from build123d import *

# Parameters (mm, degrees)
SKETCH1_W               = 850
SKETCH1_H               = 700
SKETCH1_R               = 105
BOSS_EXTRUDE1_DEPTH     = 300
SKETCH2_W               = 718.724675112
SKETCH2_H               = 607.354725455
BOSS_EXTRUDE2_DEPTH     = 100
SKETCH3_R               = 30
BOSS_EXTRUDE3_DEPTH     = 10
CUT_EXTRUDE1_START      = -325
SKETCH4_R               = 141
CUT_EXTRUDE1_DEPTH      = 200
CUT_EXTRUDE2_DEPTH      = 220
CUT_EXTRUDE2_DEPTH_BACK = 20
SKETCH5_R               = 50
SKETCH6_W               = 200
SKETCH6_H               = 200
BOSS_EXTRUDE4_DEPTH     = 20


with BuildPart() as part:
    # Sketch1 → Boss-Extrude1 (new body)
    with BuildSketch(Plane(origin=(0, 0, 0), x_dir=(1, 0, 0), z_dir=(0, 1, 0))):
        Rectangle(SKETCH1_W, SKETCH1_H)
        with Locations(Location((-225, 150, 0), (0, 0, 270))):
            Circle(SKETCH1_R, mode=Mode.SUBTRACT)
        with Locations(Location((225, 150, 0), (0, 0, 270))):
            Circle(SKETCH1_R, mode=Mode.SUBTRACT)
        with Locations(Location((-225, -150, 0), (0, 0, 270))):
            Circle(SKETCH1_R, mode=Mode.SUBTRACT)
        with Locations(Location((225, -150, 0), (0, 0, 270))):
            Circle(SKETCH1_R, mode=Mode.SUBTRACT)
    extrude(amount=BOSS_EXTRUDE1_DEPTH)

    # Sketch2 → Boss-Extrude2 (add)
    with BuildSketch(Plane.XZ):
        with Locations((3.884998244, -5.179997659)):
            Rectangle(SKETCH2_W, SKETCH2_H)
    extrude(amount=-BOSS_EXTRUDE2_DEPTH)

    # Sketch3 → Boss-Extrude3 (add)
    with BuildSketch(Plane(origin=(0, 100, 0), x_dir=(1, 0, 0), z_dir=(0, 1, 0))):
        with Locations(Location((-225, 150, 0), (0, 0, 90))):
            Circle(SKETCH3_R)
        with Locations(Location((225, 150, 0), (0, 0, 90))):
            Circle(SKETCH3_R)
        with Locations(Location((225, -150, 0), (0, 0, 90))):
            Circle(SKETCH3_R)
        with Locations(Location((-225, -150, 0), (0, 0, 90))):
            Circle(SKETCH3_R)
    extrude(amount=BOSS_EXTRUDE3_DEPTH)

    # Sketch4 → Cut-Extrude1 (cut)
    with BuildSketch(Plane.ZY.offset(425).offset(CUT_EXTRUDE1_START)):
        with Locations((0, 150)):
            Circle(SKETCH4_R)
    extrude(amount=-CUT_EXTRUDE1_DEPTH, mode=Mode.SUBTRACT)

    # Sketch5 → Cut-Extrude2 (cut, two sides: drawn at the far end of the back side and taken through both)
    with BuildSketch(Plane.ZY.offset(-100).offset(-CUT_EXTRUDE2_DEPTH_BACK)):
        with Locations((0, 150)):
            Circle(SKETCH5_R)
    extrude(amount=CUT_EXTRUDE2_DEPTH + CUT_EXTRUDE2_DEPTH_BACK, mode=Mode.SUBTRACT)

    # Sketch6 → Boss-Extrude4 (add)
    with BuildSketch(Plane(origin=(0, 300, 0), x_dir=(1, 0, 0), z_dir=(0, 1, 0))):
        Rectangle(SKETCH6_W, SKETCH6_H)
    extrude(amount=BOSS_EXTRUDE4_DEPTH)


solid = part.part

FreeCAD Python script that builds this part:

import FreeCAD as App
import Part
import Sketcher

V = App.Vector
Q = App.Units.Quantity

doc = App.newDocument("Part")
body = doc.addObject("PartDesign::Body", "Body")

sketch1 = body.newObject("Sketcher::SketchObject", "Sketch")
sketch1.AttachmentSupport = (doc.getObject("XZ_Plane"), [""])
sketch1.MapMode = "FlatFace"
sketch1.addGeometry([
    Part.LineSegment(V(-425, -350, 0), V(-425, 350, 0)),
    Part.LineSegment(V(-425, 350, 0), V(425, 350, 0)),
    Part.LineSegment(V(425, 350, 0), V(425, -350, 0)),
    Part.LineSegment(V(425, -350, 0), V(-425, -350, 0)),
    Part.Circle(V(-225, 150, 0), V(0, 0, 1), 105),
    Part.Circle(V(225, 150, 0), V(0, 0, 1), 105),
    Part.Circle(V(-225, -150, 0), V(0, 0, 1), 105),
    Part.Circle(V(225, -150, 0), V(0, 0, 1), 105),
], False)
sketch1.addConstraint([
    Sketcher.Constraint("Coincident", 0, 2, 1, 1),
    Sketcher.Constraint("Coincident", 1, 2, 2, 1),
    Sketcher.Constraint("Coincident", 2, 2, 3, 1),
    Sketcher.Constraint("Coincident", 3, 2, 0, 1),
    Sketcher.Constraint("Vertical", 0),
    Sketcher.Constraint("Horizontal", 1),
    Sketcher.Constraint("Vertical", 2),
    Sketcher.Constraint("Horizontal", 3),
    Sketcher.Constraint("Equal", 4, 5),
    Sketcher.Constraint("Equal", 5, 6),
    Sketcher.Constraint("Equal", 6, 7),
    Sketcher.Constraint("Symmetric", 5, 3, 6, 3, -1, 1),
    Sketcher.Constraint("Symmetric", 4, 3, 7, 3, -1, 1),
    Sketcher.Constraint("Symmetric", 0, 2, 2, 2, -1, 1),
    Sketcher.Constraint("Symmetric", 4, 3, 5, 3, -2),
    Sketcher.Constraint("Diameter", 4, Q("210 mm")),
    Sketcher.Constraint("DistanceX", 1, 1, 1, 2, Q("850 mm")),
    Sketcher.Constraint("DistanceY", 0, 1, 0, 2, Q("700 mm")),
    Sketcher.Constraint("DistanceX", 4, 3, -1, 1, Q("225 mm")),
    Sketcher.Constraint("DistanceY", -1, 1, 4, 3, Q("150 mm")),
])
pad1 = body.newObject("PartDesign::Pad", "Pad")
pad1.Profile = sketch1
pad1.Length = 300
pad1.Reversed = True

sketch2 = body.newObject("Sketcher::SketchObject", "Sketch001")
sketch2.AttachmentSupport = (doc.getObject("XZ_Plane"), [""])
sketch2.MapMode = "FlatFace"
sketch2.addGeometry([
    Part.LineSegment(V(-355.477339, 298.497365, 0), V(-355.477339, -308.85736, 0)),
    Part.LineSegment(V(-355.477339, -308.85736, 0), V(363.247336, -308.85736, 0)),
    Part.LineSegment(V(363.247336, -308.85736, 0), V(363.247336, 298.497365, 0)),
    Part.LineSegment(V(363.247336, 298.497365, 0), V(-355.477339, 298.497365, 0)),
], False)
sketch2.addConstraint([
    Sketcher.Constraint("Coincident", 0, 2, 1, 1),
    Sketcher.Constraint("Coincident", 1, 2, 2, 1),
    Sketcher.Constraint("Coincident", 2, 2, 3, 1),
    Sketcher.Constraint("Coincident", 3, 2, 0, 1),
    Sketcher.Constraint("Vertical", 0),
    Sketcher.Constraint("Horizontal", 1),
    Sketcher.Constraint("Vertical", 2),
    Sketcher.Constraint("Horizontal", 3),
    Sketcher.Constraint("DistanceX", 1, 1, 1, 2, Q("718.724675 mm")),
    Sketcher.Constraint("DistanceY", 0, 2, 0, 1, Q("607.354725 mm")),
    Sketcher.Constraint("DistanceX", 0, 2, -1, 1, Q("355.477339 mm")),
    Sketcher.Constraint("DistanceY", 0, 2, -1, 1, Q("308.85736 mm")),
])
pad2 = body.newObject("PartDesign::Pad", "Pad001")
pad2.Profile = sketch2
pad2.Length = 100
pad2.Reversed = True

sketch3 = body.newObject("Sketcher::SketchObject", "Sketch002")
sketch3.AttachmentSupport = (doc.getObject("XZ_Plane"), [""])
sketch3.MapMode = "FlatFace"
sketch3.AttachmentOffset = App.Placement(V(0, 0, -100), App.Rotation())
sketch3.addGeometry([
    Part.Circle(V(-225, -150, 0), V(0, 0, 1), 30),
    Part.Circle(V(225, -150, 0), V(0, 0, 1), 30),
    Part.Circle(V(225, 150, 0), V(0, 0, 1), 30),
    Part.Circle(V(-225, 150, 0), V(0, 0, 1), 30),
], False)
sketch3.addConstraint([
    Sketcher.Constraint("Equal", 0, 1),
    Sketcher.Constraint("Equal", 1, 2),
    Sketcher.Constraint("Equal", 2, 3),
    Sketcher.Constraint("Symmetric", 0, 3, 2, 3, -1, 1),
    Sketcher.Constraint("Symmetric", 1, 3, 3, 3, -1, 1),
    Sketcher.Constraint("Symmetric", 0, 3, 1, 3, -2),
    Sketcher.Constraint("Diameter", 0, Q("60 mm")),
    Sketcher.Constraint("DistanceX", 0, 3, -1, 1, Q("225 mm")),
    Sketcher.Constraint("DistanceY", 0, 3, -1, 1, Q("150 mm")),
])
pad3 = body.newObject("PartDesign::Pad", "Pad002")
pad3.Profile = sketch3
pad3.Length = 10
pad3.Reversed = True

sketch4 = body.newObject("Sketcher::SketchObject", "Sketch003")
sketch4.AttachmentSupport = (doc.getObject("YZ_Plane"), [""])
sketch4.MapMode = "FlatFace"
sketch4.AttachmentOffset = App.Placement(V(0, 0, -100), App.Rotation())
sketch4.addGeometry(Part.Circle(V(150, 0, 0), V(0, 0, 1), 141), False)
sketch4.addConstraint([
    Sketcher.Constraint("PointOnObject", 0, 3, -1),
    Sketcher.Constraint("Diameter", 0, Q("282 mm")),
    Sketcher.Constraint("DistanceX", -1, 1, 0, 3, Q("150 mm")),
])
pocket1 = body.newObject("PartDesign::Pocket", "Pocket")
pocket1.Profile = sketch4
pocket1.Length = 200
pocket1.Reversed = True

sketch5 = body.newObject("Sketcher::SketchObject", "Sketch004")
sketch5.AttachmentSupport = (doc.getObject("YZ_Plane"), [""])
sketch5.MapMode = "FlatFace"
sketch5.AttachmentOffset = App.Placement(V(0, 0, 100), App.Rotation())
sketch5.addGeometry(Part.Circle(V(150, 0, 0), V(0, 0, 1), 50), False)
sketch5.addConstraint([
    Sketcher.Constraint("PointOnObject", 0, 3, -1),
    Sketcher.Constraint("Diameter", 0, Q("100 mm")),
    Sketcher.Constraint("DistanceX", -1, 1, 0, 3, Q("150 mm")),
])
pocket2 = body.newObject("PartDesign::Pocket", "Pocket001")
pocket2.Profile = sketch5
pocket2.Type = "TwoLengths"
pocket2.Length = 220
pocket2.Length2 = 20

sketch6 = body.newObject("Sketcher::SketchObject", "Sketch005")
sketch6.AttachmentSupport = (doc.getObject("XZ_Plane"), [""])
sketch6.MapMode = "FlatFace"
sketch6.AttachmentOffset = App.Placement(V(0, 0, -300), App.Rotation())
sketch6.addGeometry([
    Part.LineSegment(V(-100, -100, 0), V(-100, 100, 0)),
    Part.LineSegment(V(-100, 100, 0), V(100, 100, 0)),
    Part.LineSegment(V(100, 100, 0), V(100, -100, 0)),
    Part.LineSegment(V(100, -100, 0), V(-100, -100, 0)),
], False)
sketch6.addConstraint([
    Sketcher.Constraint("Coincident", 0, 2, 1, 1),
    Sketcher.Constraint("Coincident", 1, 2, 2, 1),
    Sketcher.Constraint("Coincident", 2, 2, 3, 1),
    Sketcher.Constraint("Coincident", 3, 2, 0, 1),
    Sketcher.Constraint("Vertical", 0),
    Sketcher.Constraint("Horizontal", 1),
    Sketcher.Constraint("Vertical", 2),
    Sketcher.Constraint("Horizontal", 3),
    Sketcher.Constraint("Symmetric", 0, 2, 2, 2, -1, 1),
    Sketcher.Constraint("Equal", 3, 0),
    Sketcher.Constraint("DistanceX", 1, 1, 1, 2, Q("200 mm")),
])
pad4 = body.newObject("PartDesign::Pad", "Pad003")
pad4.Profile = sketch6
pad4.Length = 20
pad4.Reversed = True

doc.recompute()
